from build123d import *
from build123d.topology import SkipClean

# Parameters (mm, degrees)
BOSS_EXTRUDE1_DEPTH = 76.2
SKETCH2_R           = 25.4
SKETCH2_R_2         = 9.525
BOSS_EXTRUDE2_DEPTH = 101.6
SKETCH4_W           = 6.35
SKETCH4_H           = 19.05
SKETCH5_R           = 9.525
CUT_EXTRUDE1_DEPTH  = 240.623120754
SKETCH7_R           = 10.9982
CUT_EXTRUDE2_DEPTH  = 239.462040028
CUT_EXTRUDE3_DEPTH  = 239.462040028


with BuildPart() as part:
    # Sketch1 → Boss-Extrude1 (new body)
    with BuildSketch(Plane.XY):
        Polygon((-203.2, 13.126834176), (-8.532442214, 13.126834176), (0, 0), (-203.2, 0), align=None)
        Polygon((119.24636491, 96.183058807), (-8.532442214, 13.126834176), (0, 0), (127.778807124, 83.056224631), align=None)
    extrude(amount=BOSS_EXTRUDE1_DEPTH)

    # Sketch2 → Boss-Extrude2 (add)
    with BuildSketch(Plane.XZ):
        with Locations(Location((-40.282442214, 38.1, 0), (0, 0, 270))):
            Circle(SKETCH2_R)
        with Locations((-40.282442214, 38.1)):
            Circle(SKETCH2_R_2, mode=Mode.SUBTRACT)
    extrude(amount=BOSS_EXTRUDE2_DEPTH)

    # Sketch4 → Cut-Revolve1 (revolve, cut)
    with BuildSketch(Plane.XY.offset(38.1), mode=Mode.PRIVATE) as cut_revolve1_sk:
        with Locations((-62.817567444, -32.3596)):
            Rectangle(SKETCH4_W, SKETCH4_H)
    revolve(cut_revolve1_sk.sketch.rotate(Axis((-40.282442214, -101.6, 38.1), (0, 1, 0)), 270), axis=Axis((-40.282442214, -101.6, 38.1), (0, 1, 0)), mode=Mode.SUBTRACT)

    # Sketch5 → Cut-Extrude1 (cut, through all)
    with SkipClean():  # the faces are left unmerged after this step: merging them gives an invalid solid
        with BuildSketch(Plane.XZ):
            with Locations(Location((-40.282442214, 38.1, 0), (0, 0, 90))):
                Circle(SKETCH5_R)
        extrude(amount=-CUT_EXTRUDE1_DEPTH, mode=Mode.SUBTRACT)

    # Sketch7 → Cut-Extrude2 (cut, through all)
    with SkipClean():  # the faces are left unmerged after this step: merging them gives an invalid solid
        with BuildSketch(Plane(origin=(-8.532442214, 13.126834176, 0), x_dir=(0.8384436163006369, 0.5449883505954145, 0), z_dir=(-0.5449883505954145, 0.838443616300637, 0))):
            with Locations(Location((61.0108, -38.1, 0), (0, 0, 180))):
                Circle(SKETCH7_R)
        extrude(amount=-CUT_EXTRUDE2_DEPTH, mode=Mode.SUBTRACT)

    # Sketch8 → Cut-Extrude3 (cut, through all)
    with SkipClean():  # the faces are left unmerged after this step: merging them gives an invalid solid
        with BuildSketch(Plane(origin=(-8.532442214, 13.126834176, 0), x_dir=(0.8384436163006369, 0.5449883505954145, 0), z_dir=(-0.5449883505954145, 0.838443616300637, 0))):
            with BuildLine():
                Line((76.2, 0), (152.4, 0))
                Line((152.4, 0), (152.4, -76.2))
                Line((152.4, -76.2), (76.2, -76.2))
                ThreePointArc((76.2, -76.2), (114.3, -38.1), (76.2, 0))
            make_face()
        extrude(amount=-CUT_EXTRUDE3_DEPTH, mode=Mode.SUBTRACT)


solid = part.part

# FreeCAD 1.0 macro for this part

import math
import FreeCAD as App
import Part
import Sketcher

V = App.Vector
Q = App.Units.Quantity


def add_polygon(sketch, points):
    """Adds a closed chain of lines whose ends are joined by coincident constraints."""
    first, n = sketch.GeometryCount, len(points)
    for a, b in zip(points, points[1:] + points[:1]):
        sketch.addGeometry(Part.LineSegment(App.Vector(*a, 0), App.Vector(*b, 0)), False)
    for i in range(n):
        sketch.addConstraint(Sketcher.Constraint("Coincident", first + i, 2, first + (i + 1) % n, 1))

doc = App.newDocument("Part")
body = doc.addObject("PartDesign::Body", "Body")

# Sketch on XY plane
sketch1 = doc.addObject("Sketcher::SketchObject", "Sketch")
body.addObject(sketch1)
sketch1.AttachmentSupport = (doc.XY_Plane, [""])
sketch1.MapMode = "FlatFace"
add_polygon(sketch1, [(-9, 13), (-203, 13), (-203, 0), (0, 0), (128, 83), (119, 96)])  # lines 0-5
sketch1.addConstraint([
    Sketcher.Constraint("Horizontal", 0),
    Sketcher.Constraint("Vertical", 1),
    Sketcher.Constraint("Horizontal", 2),
    Sketcher.Constraint("Coincident", 2, 2, -1, 1),
    Sketcher.Constraint("Perpendicular", 3, 4),
    Sketcher.Constraint("Perpendicular", 4, 5),
    Sketcher.Constraint("Equal", 3, 5),
    Sketcher.Constraint("DistanceX", 2, 1, 2, 2, Q("8 in")),
    Sketcher.Constraint("Distance", 3, Q("6 in")),
    Sketcher.Constraint("Distance", 4, 15.656192),
    Sketcher.Constraint("DistanceX", 0, 2, 0, 1, 194.667558),
])
pad1 = doc.addObject("PartDesign::Pad", "Pad")
body.addObject(pad1)
pad1.Profile = sketch1
pad1.Length = Q("3 in")

# Sketch on XZ plane
sketch2 = doc.addObject("Sketcher::SketchObject", "Sketch001")
body.addObject(sketch2)
sketch2.AttachmentSupport = (doc.XZ_Plane, [""])
sketch2.MapMode = "FlatFace"
sketch2.addGeometry([
    Part.Circle(V(-40, 38, 0), V(0, 0, 1), 25),
    Part.Circle(V(-40, 38, 0), V(0, 0, 1), 10),
], False)
sketch2.addConstraint([
    Sketcher.Constraint("Coincident", 1, 3, 0, 3),
    Sketcher.Constraint("Diameter", 0, Q("2 in")),
    Sketcher.Constraint("Diameter", 1, Q("0.75 in")),
    Sketcher.Constraint("DistanceY", -1, 1, 0, 3, Q("1.5 in")),
    Sketcher.Constraint("DistanceX", 0, 3, -1, 1, 40.282442),
])
pad2 = doc.addObject("PartDesign::Pad", "Pad001")
body.addObject(pad2)
pad2.Profile = sketch2
pad2.Length = Q("4 in")

# Sketch on XY plane
sketch3 = doc.addObject("Sketcher::SketchObject", "Sketch002")
body.addObject(sketch3)
sketch3.AttachmentSupport = (doc.XY_Plane, [""])
sketch3.MapMode = "FlatFace"
sketch3.AttachmentOffset = App.Placement(V(0, 0, 1.5 * 25.4), App.Rotation())
add_polygon(sketch3, [(-66, -23), (-66, -42), (-60, -42), (-60, -23)])  # lines 0-3
sketch3.addGeometry(Part.LineSegment(V(-40, -42, 0), V(-40, -23, 0)), True)  # axis
sketch3.addConstraint([
    Sketcher.Constraint("Vertical", 0),
    Sketcher.Constraint("Horizontal", 1),
    Sketcher.Constraint("Vertical", 2),
    Sketcher.Constraint("Horizontal", 3),
    Sketcher.Constraint("Vertical", 4),
    Sketcher.Constraint("Horizontal", 1, 2, 4, 1),
    Sketcher.Constraint("Horizontal", 3, 2, 4, 2),
    Sketcher.Constraint("DistanceX", 1, 1, 1, 2, Q("0.25 in")),
    Sketcher.Constraint("DistanceY", 0, 2, 0, 1, Q("0.75 in")),
    Sketcher.Constraint("DistanceY", 0, 2, -1, 1, Q("1.649 in")),
    Sketcher.Constraint("DistanceX", 0, 2, -1, 1, 65.992567),
    Sketcher.Constraint("DistanceX", 4, 1, -1, 1, 40.282442),
])
groove = doc.addObject("PartDesign::Groove", "Groove")
body.addObject(groove)
groove.Profile = sketch3
groove.ReferenceAxis = (sketch3, ["Axis0"])
groove.Angle = 360

# Sketch on XZ plane
sketch4 = doc.addObject("Sketcher::SketchObject", "Sketch003")
body.addObject(sketch4)
sketch4.AttachmentSupport = (doc.XZ_Plane, [""])
sketch4.MapMode = "FlatFace"
sketch4.addGeometry(Part.Circle(V(-40, 38, 0), V(0, 0, 1), 10), False)
sketch4.addConstraint([
    Sketcher.Constraint("Diameter", 0, Q("0.75 in")),
    Sketcher.Constraint("DistanceY", -1, 1, 0, 3, Q("1.5 in")),
    Sketcher.Constraint("DistanceX", 0, 3, -1, 1, 40.282442),
])
pocket1 = doc.addObject("PartDesign::Pocket", "Pocket")
body.addObject(pocket1)
pocket1.Profile = sketch4
pocket1.Type = "ThroughAll"

# Sketch on an angled plane
sketch5 = doc.addObject("Sketcher::SketchObject", "Sketch004")
body.addObject(sketch5)
sketch5.Placement = App.Placement(V(-8.532442, 13.126834, 0), App.Rotation(V(0.838443616, 0.544988351, 0), V(0, 0, -1), V(-0.544988351, 0.838443616, 0), "ZXY"))
sketch5.addGeometry(Part.Circle(V(61, -38, 0), V(0, 0, 1), 11), False)
sketch5.addConstraint([
    Sketcher.Constraint("Diameter", 0, Q("0.866 in")),
    Sketcher.Constraint("DistanceY", 0, 3, -1, 1, Q("1.5 in")),
    Sketcher.Constraint("DistanceX", -1, 1, 0, 3, Q("2.402 in")),
])
pocket2 = doc.addObject("PartDesign::Pocket", "Pocket001")
body.addObject(pocket2)
pocket2.Profile = sketch5
pocket2.Type = "ThroughAll"

# Sketch on an angled plane
sketch6 = doc.addObject("Sketcher::SketchObject", "Sketch005")
body.addObject(sketch6)
sketch6.Placement = App.Placement(V(-8.532442, 13.126834, 0), App.Rotation(V(0.838443616, 0.544988351, 0), V(0, 0, -1), V(-0.544988351, 0.838443616, 0), "ZXY"))
sketch6.addGeometry([
    Part.LineSegment(V(152, 0, 0), V(76, 0, 0)),
    Part.ArcOfCircle(Part.Circle(V(76, -38, 0), V(0, 0, 1), 38), math.radians(-90), math.radians(90)),
    Part.LineSegment(V(76, -76, 0), V(152, -76, 0)),
    Part.LineSegment(V(152, -76, 0), V(152, 0, 0)),
], False)
sketch6.addConstraint([
    Sketcher.Constraint("Tangent", 0, 2, 1, 2),
    Sketcher.Constraint("Tangent", 1, 1, 2, 1),
    Sketcher.Constraint("Coincident", 2, 2, 3, 1),
    Sketcher.Constraint("Coincident", 3, 2, 0, 1),
    Sketcher.Constraint("Horizontal", 0),
    Sketcher.Constraint("Horizontal", 2),
    Sketcher.Constraint("Vertical", 3),
    Sketcher.Constraint("PointOnObject", 0, 2, -1),
    Sketcher.Constraint("Equal", 2, 3),
    Sketcher.Constraint("Radius", 1, Q("1.5 in")),
    Sketcher.Constraint("DistanceX", -1, 1, 1, 3, Q("3 in")),
])
pocket3 = doc.addObject("PartDesign::Pocket", "Pocket002")
body.addObject(pocket3)
pocket3.Profile = sketch6
pocket3.Type = "ThroughAll"

doc.recompute()
